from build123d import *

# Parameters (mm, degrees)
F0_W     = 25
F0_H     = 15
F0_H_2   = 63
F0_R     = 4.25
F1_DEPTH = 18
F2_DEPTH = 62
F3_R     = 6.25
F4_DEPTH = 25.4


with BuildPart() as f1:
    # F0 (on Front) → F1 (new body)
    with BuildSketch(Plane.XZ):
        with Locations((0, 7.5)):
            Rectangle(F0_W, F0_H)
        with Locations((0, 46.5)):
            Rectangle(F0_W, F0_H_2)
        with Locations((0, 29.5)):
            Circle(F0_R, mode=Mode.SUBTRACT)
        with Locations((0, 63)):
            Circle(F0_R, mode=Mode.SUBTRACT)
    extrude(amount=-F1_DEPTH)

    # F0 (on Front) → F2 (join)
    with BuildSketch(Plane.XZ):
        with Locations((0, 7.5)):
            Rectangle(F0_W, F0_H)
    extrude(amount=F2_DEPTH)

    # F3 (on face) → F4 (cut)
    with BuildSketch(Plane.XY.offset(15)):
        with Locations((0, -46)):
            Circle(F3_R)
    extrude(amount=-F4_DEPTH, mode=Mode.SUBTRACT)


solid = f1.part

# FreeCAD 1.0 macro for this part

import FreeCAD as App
import Part
import Sketcher

V = App.Vector

doc = App.newDocument("Part")
body = doc.addObject("PartDesign::Body", "Body")

# Sketch on XZ plane
sketch1 = body.newObject("Sketcher::SketchObject", "Sketch")
sketch1.AttachmentSupport = (doc.getObject("XZ_Plane"), [""])
sketch1.MapMode = "FlatFace"
sketch1.addGeometry([
    Part.LineSegment(V(-12.5, 0, 0), V(12.5, 0, 0)),  # 0
    Part.LineSegment(V(12.5, 0, 0), V(12.5, 78, 0)),  # 1
    Part.LineSegment(V(12.5, 78, 0), V(-12.5, 78, 0)),  # 2
    Part.LineSegment(V(-12.5, 78, 0), V(-12.5, 0, 0)),  # 3
    Part.Circle(V(0, 29.5, 0), V(0, 0, 1), 4.2),  # 4
    Part.Circle(V(0, 63, 0), V(0, 0, 1), 4.2),  # 5
], False)
sketch1.addConstraint([
    Sketcher.Constraint("Coincident", 0, 2, 1, 1),
    Sketcher.Constraint("Coincident", 1, 2, 2, 1),
    Sketcher.Constraint("Coincident", 2, 2, 3, 1),
    Sketcher.Constraint("Coincident", 3, 2, 0, 1),
    Sketcher.Constraint("Horizontal", 0),
    Sketcher.Constraint("Vertical", 1),
    Sketcher.Constraint("Horizontal", 2),
    Sketcher.Constraint("Vertical", 3),
    Sketcher.Constraint("Equal", 4, 5),
    Sketcher.Constraint("Symmetric", 0, 2, 3, 2, -1, 1),
    Sketcher.Constraint("PointOnObject", 4, 3, -2),
    Sketcher.Constraint("PointOnObject", 5, 3, -2),
    Sketcher.Constraint("Diameter", 4, 8.5),
    Sketcher.Constraint("DistanceX", 0, 1, 0, 2, 25.0),
    Sketcher.Constraint("DistanceY", 1, 1, 1, 2, 78.0),
    Sketcher.Constraint("DistanceY", -1, 1, 5, 3, 63.0),
    Sketcher.Constraint("DistanceY", -1, 1, 4, 3, 29.5),
])
pad1 = body.newObject("PartDesign::Pad", "Pad")
pad1.Profile = sketch1
pad1.Length = 18
pad1.Reversed = True

# Sketch on XZ plane
sketch2 = body.newObject("Sketcher::SketchObject", "Sketch001")
sketch2.AttachmentSupport = (doc.getObject("XZ_Plane"), [""])
sketch2.MapMode = "FlatFace"
sketch2.addGeometry([
    Part.LineSegment(V(-12, 15, 0), V(-12, 0, 0)),
    Part.LineSegment(V(-12, 0, 0), V(12, 0, 0)),
    Part.LineSegment(V(12, 0, 0), V(12, 15, 0)),
    Part.LineSegment(V(12, 15, 0), V(-12, 15, 0)),
], False)
sketch2.addConstraint([
    Sketcher.Constraint("Coincident", 0, 2, 1, 1),
    Sketcher.Constraint("Coincident", 1, 2, 2, 1),
    Sketcher.Constraint("Coincident", 2, 2, 3, 1),
    Sketcher.Constraint("Coincident", 3, 2, 0, 1),
    Sketcher.Constraint("Vertical", 0),
    Sketcher.Constraint("Horizontal", 1),
    Sketcher.Constraint("Vertical", 2),
    Sketcher.Constraint("Horizontal", 3),
    Sketcher.Constraint("Symmetric", 0, 2, 1, 2, -1, 1),
    Sketcher.Constraint("DistanceX", 1, 1, 1, 2, 25.0),
    Sketcher.Constraint("DistanceY", 0, 2, 0, 1, 15.0),
])
pad2 = body.newObject("PartDesign::Pad", "Pad001")
pad2.Profile = sketch2
pad2.Length = 62

# Sketch on XY plane
sketch3 = body.newObject("Sketcher::SketchObject", "Sketch002")
sketch3.AttachmentSupport = (doc.getObject("XY_Plane"), [""])
sketch3.MapMode = "FlatFace"
sketch3.AttachmentOffset = App.Placement(V(0, 0, 15), App.Rotation())
sketch3.addGeometry(Part.Circle(V(0, -46, 0), V(0, 0, 1), 6), False)
sketch3.addConstraint([
    Sketcher.Constraint("PointOnObject", 0, 3, -2),
    Sketcher.Constraint("Diameter", 0, 12.5),
    Sketcher.Constraint("DistanceY", 0, 3, -1, 1, 46.0),
])
pocket1 = body.newObject("PartDesign::Pocket", "Pocket")
pocket1.Profile = sketch3
pocket1.Length = 25.4

doc.recompute()
